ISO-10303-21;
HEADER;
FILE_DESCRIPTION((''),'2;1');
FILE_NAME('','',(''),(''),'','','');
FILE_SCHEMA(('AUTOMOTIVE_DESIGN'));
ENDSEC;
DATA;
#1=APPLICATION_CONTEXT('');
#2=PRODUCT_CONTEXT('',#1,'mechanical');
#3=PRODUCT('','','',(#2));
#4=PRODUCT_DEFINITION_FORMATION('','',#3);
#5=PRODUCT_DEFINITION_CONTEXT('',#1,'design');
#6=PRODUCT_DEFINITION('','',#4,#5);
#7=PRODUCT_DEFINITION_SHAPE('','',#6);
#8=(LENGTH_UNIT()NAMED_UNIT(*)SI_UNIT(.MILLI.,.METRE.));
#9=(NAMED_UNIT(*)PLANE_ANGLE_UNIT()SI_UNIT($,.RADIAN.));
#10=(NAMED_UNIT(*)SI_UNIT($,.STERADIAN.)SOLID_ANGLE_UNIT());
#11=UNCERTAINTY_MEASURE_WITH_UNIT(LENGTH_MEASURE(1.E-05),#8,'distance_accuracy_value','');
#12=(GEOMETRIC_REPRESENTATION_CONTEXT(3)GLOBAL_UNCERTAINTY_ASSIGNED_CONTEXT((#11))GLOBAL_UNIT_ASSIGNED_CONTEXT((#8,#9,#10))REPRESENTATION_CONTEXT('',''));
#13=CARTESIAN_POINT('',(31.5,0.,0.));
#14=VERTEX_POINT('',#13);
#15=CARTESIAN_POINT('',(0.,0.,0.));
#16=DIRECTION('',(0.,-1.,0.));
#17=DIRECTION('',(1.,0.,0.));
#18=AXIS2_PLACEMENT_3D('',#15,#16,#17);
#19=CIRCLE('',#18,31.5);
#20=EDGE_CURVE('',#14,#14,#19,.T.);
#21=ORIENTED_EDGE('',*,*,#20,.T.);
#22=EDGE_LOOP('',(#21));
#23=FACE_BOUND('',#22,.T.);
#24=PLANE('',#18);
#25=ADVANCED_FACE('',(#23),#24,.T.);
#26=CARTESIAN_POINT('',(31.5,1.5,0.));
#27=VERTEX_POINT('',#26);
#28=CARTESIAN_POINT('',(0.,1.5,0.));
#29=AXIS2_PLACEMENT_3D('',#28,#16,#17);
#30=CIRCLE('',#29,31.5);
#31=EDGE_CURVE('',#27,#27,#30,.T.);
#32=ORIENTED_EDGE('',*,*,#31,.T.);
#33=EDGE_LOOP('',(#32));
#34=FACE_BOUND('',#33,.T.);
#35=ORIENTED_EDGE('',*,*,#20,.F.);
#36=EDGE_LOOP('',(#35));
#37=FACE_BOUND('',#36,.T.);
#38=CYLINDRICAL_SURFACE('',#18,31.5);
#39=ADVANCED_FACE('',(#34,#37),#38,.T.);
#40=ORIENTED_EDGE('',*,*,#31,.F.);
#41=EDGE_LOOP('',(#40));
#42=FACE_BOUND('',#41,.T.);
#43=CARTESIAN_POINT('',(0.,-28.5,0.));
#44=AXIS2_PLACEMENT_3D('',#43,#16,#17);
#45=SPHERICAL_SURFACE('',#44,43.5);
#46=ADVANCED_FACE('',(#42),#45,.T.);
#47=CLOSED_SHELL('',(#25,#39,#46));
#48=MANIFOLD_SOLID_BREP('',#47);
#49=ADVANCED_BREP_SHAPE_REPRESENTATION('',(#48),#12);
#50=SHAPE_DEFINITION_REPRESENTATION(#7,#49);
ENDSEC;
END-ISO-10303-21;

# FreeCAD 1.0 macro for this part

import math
import FreeCAD as App
import Part
import Sketcher

V = App.Vector

doc = App.newDocument("Part")
body = doc.addObject("PartDesign::Body", "Body")

# Sketch on XY plane
sketch1 = body.newObject("Sketcher::SketchObject", "Sketch")
sketch1.AttachmentSupport = (doc.getObject("XY_Plane"), [""])
sketch1.MapMode = "FlatFace"
sketch1.addGeometry(Part.LineSegment(V(0, 15, 0), V(0, 0, 0)), False)
sketch1.addGeometry(Part.LineSegment(V(0, 0, 0), V(31.5, 0, 0)), False)
sketch1.addGeometry(Part.LineSegment(V(31.5, 0, 0), V(31.5, 1.5, 0)), False)
sketch1.addGeometry(Part.ArcOfCircle(Part.Circle(V(0, -28.5, 0), V(0, 0, 1), 43.5), math.radians(43.602819), math.radians(90)), False)
sketch1.addConstraint(Sketcher.Constraint("Coincident", 0, 2, 1, 1))
sketch1.addConstraint(Sketcher.Constraint("Coincident", 1, 2, 2, 1))
sketch1.addConstraint(Sketcher.Constraint("Coincident", 2, 2, 3, 1))
sketch1.addConstraint(Sketcher.Constraint("Coincident", 3, 2, 0, 1))
sketch1.addConstraint(Sketcher.Constraint("Vertical", 0))
sketch1.addConstraint(Sketcher.Constraint("Horizontal", 1))
sketch1.addConstraint(Sketcher.Constraint("Vertical", 2))
sketch1.addConstraint(Sketcher.Constraint("Coincident", 0, 2, -1, 1))
sketch1.addConstraint(Sketcher.Constraint("PointOnObject", 3, 3, -2))
sketch1.addConstraint(Sketcher.Constraint("Radius", 3, 43.5))
sketch1.addConstraint(Sketcher.Constraint("DistanceY", 0, 2, 0, 1, 15.0))
sketch1.addConstraint(Sketcher.Constraint("DistanceX", 1, 1, 1, 2, 31.5))
revolution = body.newObject("PartDesign::Revolution", "Revolution")
revolution.Profile = sketch1
revolution.ReferenceAxis = (sketch1, ["V_Axis"])
revolution.Angle = 360

doc.recompute()
